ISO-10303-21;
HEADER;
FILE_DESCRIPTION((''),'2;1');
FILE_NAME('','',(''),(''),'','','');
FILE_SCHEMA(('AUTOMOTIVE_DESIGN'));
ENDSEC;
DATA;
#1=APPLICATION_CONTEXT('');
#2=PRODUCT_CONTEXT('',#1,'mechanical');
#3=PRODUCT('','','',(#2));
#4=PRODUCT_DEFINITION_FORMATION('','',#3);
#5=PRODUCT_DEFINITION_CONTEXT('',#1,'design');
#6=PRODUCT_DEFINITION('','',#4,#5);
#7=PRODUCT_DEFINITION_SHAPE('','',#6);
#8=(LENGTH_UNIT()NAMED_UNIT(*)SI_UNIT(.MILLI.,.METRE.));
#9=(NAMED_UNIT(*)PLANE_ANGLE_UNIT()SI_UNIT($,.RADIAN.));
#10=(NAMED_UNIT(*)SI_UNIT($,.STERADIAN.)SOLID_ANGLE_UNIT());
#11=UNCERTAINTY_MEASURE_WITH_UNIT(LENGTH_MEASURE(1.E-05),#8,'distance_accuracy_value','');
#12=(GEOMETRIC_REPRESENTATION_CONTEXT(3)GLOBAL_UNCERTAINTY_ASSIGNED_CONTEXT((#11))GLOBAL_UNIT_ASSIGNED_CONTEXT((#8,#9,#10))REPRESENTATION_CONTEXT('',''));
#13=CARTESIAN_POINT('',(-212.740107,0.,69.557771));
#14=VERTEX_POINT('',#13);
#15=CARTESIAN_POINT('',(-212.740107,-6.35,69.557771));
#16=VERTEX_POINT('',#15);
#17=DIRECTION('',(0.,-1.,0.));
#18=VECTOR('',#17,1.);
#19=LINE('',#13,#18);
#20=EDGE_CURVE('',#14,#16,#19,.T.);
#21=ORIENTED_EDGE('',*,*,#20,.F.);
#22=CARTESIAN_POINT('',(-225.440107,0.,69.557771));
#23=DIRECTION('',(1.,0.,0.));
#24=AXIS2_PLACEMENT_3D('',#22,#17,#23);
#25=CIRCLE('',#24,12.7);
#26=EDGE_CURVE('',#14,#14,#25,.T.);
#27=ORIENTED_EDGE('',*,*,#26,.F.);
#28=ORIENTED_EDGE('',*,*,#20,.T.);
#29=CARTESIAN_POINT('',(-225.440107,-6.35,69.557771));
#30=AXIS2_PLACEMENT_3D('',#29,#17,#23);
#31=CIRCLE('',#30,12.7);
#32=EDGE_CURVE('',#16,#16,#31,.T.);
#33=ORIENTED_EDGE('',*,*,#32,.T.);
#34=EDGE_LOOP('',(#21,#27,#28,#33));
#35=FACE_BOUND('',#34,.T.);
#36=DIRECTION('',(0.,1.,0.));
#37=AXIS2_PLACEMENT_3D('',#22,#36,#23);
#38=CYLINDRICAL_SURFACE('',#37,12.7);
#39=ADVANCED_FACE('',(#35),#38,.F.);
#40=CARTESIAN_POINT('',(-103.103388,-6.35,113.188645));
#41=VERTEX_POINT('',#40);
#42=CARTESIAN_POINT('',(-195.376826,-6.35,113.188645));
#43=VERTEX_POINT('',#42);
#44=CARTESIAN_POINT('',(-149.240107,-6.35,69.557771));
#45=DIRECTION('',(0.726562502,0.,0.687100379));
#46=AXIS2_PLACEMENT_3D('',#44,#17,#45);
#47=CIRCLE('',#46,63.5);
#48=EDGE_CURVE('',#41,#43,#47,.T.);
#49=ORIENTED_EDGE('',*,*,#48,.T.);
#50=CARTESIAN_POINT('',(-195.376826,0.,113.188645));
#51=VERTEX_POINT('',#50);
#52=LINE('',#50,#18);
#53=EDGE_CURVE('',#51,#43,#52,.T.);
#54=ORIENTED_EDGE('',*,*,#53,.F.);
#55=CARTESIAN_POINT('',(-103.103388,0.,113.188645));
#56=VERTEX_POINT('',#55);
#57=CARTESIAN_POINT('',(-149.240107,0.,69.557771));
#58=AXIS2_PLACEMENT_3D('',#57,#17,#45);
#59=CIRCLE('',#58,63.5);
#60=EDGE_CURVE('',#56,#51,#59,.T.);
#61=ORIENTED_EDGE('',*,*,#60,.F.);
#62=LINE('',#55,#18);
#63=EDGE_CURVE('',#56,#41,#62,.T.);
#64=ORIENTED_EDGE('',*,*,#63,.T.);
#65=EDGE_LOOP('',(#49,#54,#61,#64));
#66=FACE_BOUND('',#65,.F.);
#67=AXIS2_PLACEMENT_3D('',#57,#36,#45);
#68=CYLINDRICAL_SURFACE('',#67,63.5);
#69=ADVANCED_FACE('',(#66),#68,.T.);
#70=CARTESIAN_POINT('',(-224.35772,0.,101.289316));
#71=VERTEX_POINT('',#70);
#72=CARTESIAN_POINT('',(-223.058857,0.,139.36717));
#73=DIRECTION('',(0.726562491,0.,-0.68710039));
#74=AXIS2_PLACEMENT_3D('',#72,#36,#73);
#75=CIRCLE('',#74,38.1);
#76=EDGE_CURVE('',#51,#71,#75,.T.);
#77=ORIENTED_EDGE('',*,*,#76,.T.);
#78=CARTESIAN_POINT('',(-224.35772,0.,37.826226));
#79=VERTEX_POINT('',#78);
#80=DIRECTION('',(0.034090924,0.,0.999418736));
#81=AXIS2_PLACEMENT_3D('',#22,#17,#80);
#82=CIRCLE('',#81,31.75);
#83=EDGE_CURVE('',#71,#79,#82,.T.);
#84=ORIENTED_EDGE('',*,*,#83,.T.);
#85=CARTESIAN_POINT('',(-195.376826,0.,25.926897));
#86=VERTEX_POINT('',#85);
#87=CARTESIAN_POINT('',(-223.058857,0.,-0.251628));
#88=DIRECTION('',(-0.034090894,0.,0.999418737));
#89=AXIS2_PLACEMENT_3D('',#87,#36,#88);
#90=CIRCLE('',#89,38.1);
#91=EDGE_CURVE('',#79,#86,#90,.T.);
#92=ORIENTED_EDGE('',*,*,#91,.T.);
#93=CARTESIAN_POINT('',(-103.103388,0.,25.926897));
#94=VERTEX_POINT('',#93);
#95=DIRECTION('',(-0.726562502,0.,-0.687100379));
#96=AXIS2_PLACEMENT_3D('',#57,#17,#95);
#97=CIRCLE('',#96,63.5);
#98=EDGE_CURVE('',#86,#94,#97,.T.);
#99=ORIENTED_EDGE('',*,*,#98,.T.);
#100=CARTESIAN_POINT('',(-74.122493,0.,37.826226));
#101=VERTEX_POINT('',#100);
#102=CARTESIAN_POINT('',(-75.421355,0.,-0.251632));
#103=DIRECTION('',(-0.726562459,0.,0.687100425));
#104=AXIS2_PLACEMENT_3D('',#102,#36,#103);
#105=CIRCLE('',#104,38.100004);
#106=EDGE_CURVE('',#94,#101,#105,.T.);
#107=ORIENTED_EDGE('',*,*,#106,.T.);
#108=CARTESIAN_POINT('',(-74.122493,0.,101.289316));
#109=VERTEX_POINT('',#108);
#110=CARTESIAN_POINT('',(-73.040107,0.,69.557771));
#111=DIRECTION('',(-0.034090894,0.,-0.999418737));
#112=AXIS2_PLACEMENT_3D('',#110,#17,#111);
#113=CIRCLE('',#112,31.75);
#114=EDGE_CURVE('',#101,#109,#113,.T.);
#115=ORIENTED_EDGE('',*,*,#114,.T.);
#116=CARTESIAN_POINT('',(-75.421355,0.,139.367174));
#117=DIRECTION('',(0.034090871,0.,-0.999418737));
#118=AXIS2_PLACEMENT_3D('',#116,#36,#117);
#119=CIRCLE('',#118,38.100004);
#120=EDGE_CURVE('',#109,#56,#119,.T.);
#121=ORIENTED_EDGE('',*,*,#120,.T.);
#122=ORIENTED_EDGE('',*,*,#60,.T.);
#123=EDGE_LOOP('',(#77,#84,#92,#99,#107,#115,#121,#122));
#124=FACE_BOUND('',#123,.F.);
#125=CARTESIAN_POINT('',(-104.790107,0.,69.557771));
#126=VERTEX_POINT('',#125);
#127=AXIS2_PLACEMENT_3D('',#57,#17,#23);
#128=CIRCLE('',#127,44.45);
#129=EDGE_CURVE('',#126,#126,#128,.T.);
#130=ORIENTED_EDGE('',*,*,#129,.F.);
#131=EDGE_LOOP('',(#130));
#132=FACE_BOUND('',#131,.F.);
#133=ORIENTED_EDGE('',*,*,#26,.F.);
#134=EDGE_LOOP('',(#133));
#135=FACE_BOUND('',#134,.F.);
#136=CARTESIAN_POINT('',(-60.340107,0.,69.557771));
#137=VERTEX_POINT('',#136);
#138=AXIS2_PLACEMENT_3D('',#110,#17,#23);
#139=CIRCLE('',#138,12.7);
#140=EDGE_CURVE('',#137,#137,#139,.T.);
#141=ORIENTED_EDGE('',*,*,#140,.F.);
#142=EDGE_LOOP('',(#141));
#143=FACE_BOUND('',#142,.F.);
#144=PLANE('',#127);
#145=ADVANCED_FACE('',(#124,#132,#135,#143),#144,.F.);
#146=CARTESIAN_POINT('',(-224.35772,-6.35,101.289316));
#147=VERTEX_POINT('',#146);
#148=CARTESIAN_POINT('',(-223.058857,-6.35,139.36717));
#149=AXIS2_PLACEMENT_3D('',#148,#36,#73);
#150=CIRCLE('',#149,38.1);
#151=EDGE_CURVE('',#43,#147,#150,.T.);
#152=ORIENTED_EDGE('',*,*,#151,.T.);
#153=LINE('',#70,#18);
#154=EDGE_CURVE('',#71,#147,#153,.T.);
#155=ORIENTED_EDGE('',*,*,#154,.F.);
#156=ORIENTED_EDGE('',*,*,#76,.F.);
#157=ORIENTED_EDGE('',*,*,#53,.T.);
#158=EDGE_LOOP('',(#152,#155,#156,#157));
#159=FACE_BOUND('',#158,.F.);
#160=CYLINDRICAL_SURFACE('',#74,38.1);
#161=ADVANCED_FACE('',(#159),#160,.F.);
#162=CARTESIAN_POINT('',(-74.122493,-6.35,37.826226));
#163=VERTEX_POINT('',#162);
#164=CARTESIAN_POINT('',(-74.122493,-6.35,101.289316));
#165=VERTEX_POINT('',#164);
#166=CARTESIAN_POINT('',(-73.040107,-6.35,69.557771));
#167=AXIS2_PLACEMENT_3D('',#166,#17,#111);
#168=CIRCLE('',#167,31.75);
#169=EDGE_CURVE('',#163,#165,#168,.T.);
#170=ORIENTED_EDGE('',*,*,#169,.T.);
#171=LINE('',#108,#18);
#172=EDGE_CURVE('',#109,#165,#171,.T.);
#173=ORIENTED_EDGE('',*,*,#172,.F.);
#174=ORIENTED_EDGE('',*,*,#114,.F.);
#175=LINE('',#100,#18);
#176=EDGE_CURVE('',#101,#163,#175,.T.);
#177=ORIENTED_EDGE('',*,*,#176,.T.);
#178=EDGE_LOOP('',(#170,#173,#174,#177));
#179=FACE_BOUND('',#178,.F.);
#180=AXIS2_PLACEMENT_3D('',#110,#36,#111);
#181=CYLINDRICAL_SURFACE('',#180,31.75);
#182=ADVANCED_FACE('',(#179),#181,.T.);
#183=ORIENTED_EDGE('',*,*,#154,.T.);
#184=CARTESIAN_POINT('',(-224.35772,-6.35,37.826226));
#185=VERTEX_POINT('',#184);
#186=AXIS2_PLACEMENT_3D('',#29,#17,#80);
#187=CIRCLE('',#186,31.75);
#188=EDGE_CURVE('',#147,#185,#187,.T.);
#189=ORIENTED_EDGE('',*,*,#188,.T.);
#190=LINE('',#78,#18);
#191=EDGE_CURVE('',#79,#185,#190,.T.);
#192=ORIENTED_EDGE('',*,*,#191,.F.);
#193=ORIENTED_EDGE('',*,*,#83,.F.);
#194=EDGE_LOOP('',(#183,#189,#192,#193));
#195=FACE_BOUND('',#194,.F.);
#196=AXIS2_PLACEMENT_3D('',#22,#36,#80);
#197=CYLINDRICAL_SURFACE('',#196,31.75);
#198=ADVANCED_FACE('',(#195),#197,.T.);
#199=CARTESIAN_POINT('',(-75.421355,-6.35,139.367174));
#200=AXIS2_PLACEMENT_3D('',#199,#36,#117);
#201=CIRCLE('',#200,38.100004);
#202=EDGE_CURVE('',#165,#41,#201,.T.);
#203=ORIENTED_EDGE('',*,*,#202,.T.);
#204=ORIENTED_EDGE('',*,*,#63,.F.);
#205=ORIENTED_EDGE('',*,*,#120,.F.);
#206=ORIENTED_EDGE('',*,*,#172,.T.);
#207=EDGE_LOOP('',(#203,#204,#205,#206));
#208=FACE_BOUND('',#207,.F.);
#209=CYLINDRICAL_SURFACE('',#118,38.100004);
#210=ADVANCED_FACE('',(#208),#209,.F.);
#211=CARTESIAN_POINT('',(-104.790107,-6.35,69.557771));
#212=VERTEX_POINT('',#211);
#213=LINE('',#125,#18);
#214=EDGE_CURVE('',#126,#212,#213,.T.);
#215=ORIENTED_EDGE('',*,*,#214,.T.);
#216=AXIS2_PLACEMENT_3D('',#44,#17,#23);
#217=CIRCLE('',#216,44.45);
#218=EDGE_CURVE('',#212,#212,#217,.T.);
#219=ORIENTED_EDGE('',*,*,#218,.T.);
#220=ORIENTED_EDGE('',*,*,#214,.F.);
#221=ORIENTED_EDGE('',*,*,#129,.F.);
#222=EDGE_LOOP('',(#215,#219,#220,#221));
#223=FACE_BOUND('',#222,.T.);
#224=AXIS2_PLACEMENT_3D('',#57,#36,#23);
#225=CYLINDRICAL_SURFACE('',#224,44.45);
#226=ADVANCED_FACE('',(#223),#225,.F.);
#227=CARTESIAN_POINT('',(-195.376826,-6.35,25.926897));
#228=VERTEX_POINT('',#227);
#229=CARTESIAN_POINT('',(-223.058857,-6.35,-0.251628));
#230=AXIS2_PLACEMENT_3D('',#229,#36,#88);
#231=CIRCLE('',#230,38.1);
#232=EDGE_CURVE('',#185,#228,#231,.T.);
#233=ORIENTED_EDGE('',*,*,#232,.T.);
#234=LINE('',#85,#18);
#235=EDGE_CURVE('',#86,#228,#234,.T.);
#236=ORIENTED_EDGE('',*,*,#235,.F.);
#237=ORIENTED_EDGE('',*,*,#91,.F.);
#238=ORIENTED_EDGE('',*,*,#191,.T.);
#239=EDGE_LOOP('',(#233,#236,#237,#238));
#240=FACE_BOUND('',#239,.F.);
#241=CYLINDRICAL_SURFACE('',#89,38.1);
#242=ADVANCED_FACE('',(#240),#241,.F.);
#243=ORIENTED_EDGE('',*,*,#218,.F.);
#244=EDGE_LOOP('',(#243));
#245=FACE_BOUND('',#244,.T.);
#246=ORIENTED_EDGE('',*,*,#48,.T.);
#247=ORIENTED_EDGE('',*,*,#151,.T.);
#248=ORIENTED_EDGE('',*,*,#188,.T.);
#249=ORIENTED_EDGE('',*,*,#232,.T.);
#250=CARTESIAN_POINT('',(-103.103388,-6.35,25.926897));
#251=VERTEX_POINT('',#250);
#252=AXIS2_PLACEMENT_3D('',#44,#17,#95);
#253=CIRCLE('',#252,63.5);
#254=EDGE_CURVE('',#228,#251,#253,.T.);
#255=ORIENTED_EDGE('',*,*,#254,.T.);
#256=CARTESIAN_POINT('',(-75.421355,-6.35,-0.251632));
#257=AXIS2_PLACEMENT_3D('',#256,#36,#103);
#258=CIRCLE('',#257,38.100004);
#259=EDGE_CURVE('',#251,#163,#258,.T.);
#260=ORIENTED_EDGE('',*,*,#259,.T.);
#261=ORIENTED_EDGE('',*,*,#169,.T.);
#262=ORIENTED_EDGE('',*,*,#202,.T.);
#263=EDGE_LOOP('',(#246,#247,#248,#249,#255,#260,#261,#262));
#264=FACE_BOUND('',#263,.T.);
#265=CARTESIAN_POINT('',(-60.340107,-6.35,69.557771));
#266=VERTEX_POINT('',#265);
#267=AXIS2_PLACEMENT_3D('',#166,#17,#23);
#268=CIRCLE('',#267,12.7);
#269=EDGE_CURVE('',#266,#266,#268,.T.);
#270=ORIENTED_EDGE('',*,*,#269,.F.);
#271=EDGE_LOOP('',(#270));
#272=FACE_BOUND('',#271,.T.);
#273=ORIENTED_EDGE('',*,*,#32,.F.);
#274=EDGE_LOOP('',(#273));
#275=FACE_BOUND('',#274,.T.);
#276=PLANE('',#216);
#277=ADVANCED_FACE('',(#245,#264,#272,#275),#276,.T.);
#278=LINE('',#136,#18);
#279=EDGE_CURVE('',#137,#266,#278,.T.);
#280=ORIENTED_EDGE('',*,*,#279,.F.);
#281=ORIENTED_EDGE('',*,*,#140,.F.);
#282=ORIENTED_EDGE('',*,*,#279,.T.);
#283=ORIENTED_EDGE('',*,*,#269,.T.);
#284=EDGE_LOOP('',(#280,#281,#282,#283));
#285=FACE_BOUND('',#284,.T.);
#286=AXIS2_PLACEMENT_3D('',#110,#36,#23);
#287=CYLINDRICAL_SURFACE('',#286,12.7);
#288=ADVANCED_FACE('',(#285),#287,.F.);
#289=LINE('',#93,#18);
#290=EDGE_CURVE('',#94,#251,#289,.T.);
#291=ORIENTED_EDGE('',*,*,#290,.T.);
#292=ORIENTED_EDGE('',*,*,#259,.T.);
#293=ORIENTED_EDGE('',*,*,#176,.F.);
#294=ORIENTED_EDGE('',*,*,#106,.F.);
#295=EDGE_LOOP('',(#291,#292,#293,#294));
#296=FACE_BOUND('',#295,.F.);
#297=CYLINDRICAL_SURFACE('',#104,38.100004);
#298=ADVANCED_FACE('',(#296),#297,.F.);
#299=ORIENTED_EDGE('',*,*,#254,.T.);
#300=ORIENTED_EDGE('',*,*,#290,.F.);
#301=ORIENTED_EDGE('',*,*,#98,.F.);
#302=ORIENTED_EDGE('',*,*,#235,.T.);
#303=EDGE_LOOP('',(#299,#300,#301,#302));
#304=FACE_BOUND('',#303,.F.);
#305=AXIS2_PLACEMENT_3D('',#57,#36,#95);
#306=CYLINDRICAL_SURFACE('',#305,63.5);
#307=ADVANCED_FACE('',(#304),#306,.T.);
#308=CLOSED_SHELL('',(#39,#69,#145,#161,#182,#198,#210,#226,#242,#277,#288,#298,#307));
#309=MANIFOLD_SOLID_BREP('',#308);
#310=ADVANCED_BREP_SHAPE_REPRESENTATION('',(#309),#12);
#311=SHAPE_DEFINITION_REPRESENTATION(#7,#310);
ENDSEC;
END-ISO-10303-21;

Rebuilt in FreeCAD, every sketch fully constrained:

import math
import FreeCAD as App
import Part
import Sketcher
from FreeCAD import Vector
Q = App.Units.Quantity

doc = App.newDocument("Part")
params = doc.addObject("Spreadsheet::Sheet", "Params")
for row, (alias, value) in enumerate([
    ("sketch1_diameter", "1 in"),
    ("sketch1_diameter2", "3.5 in"),
    ("sketch1_radius", "1.5000002 in"),
    ("sketch1_radius2", "2.5 in"),
    ("sketch1_radius3", "1.25 in"),
    ("pad1_length", "0.25 in"),
], start=1):
    params.set(f"A{row}", alias)
    params.set(f"B{row}", "=" + value)
    params.setAlias(f"B{row}", alias)

body = doc.addObject("PartDesign::Body", "Body")

# Sketch on XZ plane
sketch1 = doc.addObject("Sketcher::SketchObject", "Sketch")
body.addObject(sketch1)
sketch1.AttachmentSupport = (doc.XZ_Plane, [""])
sketch1.MapMode = "FlatFace"
sketch1.addGeometry([
    Part.ArcOfCircle(Part.Circle(Vector(-75.421355, 139.367174, 0), Vector(0, 0, 1), 38.100004), math.radians(-136.598982), math.radians(-88.046358)),  # 0
    Part.ArcOfCircle(Part.Circle(Vector(-149.240107, 69.557771, 0), Vector(0, 0, 1), 63.5), math.radians(43.401015), math.radians(136.598985)),  # 1
    Part.ArcOfCircle(Part.Circle(Vector(-223.058857, 139.36717, 0), Vector(0, 0, 1), 38.1), math.radians(-91.953643), math.radians(-43.401016)),  # 2
    Part.ArcOfCircle(Part.Circle(Vector(-225.440107, 69.557771, 0), Vector(0, 0, 1), 31.75), math.radians(88.046355), math.radians(271.953645)),  # 3
    Part.ArcOfCircle(Part.Circle(Vector(-223.058857, -0.251628, 0), Vector(0, 0, 1), 38.1), math.radians(43.401016), math.radians(91.953643)),  # 4
    Part.ArcOfCircle(Part.Circle(Vector(-149.240107, 69.557771, 0), Vector(0, 0, 1), 63.5), math.radians(-136.598985), math.radians(-43.401015)),  # 5
    Part.ArcOfCircle(Part.Circle(Vector(-75.421355, -0.251632, 0), Vector(0, 0, 1), 38.100004), math.radians(88.046358), math.radians(136.598982)),  # 6
    Part.ArcOfCircle(Part.Circle(Vector(-73.040107, 69.557771, 0), Vector(0, 0, 1), 31.75), math.radians(-91.953643), math.radians(91.953643)),  # 7
    Part.Circle(Vector(-225.440107, 69.557771, 0), Vector(0, 0, 1), 12.7),  # 8
    Part.Circle(Vector(-149.240107, 69.557771, 0), Vector(0, 0, 1), 44.45),  # 9
    Part.Circle(Vector(-73.040107, 69.557771, 0), Vector(0, 0, 1), 12.7),  # 10
], False)
sketch1.addConstraint([
    Sketcher.Constraint("Tangent", 0, 1, 1, 1),
    Sketcher.Constraint("Tangent", 1, 2, 2, 2),
    Sketcher.Constraint("Tangent", 2, 1, 3, 1),
    Sketcher.Constraint("Tangent", 3, 2, 4, 2),
    Sketcher.Constraint("Tangent", 4, 1, 5, 1),
    Sketcher.Constraint("Tangent", 5, 2, 6, 2),
    Sketcher.Constraint("Tangent", 6, 1, 7, 1),
    Sketcher.Constraint("Tangent", 7, 2, 0, 2),
    Sketcher.Constraint("Coincident", 5, 3, 1, 3),
    Sketcher.Constraint("Coincident", 8, 3, 3, 3),
    Sketcher.Constraint("Coincident", 9, 3, 1, 3),
    Sketcher.Constraint("Coincident", 10, 3, 7, 3),
    Sketcher.Constraint("Equal", 2, 4),
    Sketcher.Constraint("Equal", 1, 5),
    Sketcher.Constraint("Equal", 0, 6),
    Sketcher.Constraint("Equal", 3, 7),
    Sketcher.Constraint("Equal", 8, 10),
    Sketcher.Constraint("Horizontal", 1, 3, 3, 3),
    Sketcher.Constraint("Horizontal", 5, 3, 7, 3),
    Sketcher.Constraint("Horizontal", 0, 1, 1, 2),
    Sketcher.Constraint("Horizontal", 3, 2, 6, 1),
    Sketcher.Constraint("Diameter", 8, Q("1 in")),
    Sketcher.Constraint("Diameter", 9, Q("3.5 in")),
    Sketcher.Constraint("Radius", 0, Q("1.5000002 in")),
    Sketcher.Constraint("Radius", 1, Q("2.5 in")),
    Sketcher.Constraint("Radius", 3, Q("1.25 in")),
    Sketcher.Constraint("DistanceX", 3, 3, 1, 3, Q("3 in")),
    Sketcher.Constraint("DistanceY", -1, 1, 1, 3, 69.557771),
    Sketcher.Constraint("DistanceX", 0, 1, -1, 1, 103.103388),
])
sketch1.setExpression("Constraints[21]", "Params.sketch1_diameter")
sketch1.setExpression("Constraints[22]", "Params.sketch1_diameter2")
sketch1.setExpression("Constraints[23]", "Params.sketch1_radius")
sketch1.setExpression("Constraints[24]", "Params.sketch1_radius2")
sketch1.setExpression("Constraints[25]", "Params.sketch1_radius3")
pad1 = doc.addObject("PartDesign::Pad", "Pad")
body.addObject(pad1)
pad1.Profile = sketch1
pad1.setExpression("Length", "Params.pad1_length")

doc.recompute()
